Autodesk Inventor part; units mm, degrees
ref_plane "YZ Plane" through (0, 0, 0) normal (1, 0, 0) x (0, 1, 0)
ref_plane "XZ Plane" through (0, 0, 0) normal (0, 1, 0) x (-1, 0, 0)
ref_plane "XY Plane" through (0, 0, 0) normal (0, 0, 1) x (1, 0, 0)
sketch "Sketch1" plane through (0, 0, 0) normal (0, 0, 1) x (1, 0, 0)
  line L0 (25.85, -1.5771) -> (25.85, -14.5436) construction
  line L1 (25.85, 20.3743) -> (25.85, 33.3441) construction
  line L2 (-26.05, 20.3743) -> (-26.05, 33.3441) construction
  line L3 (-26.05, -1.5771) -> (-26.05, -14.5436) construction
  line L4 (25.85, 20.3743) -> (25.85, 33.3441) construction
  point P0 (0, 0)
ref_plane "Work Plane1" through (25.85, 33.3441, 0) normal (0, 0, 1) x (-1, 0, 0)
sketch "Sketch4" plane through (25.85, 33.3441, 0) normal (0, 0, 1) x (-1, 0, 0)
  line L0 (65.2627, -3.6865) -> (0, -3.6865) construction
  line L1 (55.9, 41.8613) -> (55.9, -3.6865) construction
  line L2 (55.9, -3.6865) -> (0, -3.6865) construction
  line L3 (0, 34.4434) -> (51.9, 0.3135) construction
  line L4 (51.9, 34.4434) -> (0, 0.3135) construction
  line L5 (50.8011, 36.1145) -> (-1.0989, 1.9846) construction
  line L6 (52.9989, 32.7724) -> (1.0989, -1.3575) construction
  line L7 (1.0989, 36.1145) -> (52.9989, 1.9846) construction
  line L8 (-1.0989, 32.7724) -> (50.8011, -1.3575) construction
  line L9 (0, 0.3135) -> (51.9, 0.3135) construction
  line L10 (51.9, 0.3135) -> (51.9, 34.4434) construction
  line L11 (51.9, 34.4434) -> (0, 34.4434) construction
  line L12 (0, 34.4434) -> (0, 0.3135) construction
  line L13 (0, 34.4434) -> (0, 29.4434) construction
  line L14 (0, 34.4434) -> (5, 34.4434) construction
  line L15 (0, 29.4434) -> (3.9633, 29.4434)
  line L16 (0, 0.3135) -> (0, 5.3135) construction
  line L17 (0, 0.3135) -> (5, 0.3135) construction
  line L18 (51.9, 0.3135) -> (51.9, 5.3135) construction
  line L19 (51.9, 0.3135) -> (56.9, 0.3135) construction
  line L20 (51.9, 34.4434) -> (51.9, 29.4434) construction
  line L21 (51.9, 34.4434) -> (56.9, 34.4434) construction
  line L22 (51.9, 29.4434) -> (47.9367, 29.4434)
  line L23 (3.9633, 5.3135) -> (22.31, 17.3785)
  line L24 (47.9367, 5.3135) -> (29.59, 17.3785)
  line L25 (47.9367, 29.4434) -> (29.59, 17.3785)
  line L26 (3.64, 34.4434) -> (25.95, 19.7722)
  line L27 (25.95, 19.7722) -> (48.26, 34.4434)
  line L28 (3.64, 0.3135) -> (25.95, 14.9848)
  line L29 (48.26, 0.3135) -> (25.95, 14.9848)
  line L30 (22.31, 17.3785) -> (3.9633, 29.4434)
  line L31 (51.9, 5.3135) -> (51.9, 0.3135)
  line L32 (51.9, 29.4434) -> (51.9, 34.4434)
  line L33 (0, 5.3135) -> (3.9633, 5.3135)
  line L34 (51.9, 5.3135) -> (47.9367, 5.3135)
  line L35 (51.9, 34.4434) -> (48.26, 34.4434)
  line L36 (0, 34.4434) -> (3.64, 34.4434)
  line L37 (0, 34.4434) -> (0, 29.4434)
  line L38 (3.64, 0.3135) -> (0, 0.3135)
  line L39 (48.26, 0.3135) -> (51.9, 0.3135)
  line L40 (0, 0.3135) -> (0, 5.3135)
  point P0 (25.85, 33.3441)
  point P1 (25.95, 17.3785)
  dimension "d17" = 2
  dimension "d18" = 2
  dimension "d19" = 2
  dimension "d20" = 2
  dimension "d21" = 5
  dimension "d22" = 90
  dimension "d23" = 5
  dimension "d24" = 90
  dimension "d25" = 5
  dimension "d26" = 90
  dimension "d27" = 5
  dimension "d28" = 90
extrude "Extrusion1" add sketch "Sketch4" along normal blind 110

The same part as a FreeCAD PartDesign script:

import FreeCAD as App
import Part
import Sketcher

V = App.Vector
Q = App.Units.Quantity


def add_polygon(sketch, points):
    """Adds a closed chain of lines whose ends are joined by coincident constraints."""
    first, n = sketch.GeometryCount, len(points)
    for a, b in zip(points, points[1:] + points[:1]):
        sketch.addGeometry(Part.LineSegment(App.Vector(*a, 0), App.Vector(*b, 0)), False)
    for i in range(n):
        sketch.addConstraint(Sketcher.Constraint("Coincident", first + i, 2, first + (i + 1) % n, 1))

doc = App.newDocument("Part")
body = doc.addObject("PartDesign::Body", "Body")

# Sketch on XY plane
sketch1 = body.newObject("Sketcher::SketchObject", "Sketch")
sketch1.AttachmentSupport = (doc.getObject("XY_Plane"), [""])
sketch1.MapMode = "FlatFace"
add_polygon(sketch1, [(25.9, -1.1), (25.9, 3.9), (21.9, 3.9), (3.5, 16), (21.9, 28), (25.9, 28), (25.9, 33), (22.2, 33), (-0.1, 18.4), (-22.4, 33), (-26.1, 33), (-26.1, 28), (-22.1, 28), (-3.7, 16), (-22.1, 3.9), (-26.1, 3.9), (-26.1, -1.1), (-22.4, -1.1), (-0.1, 13.6), (22.2, -1.1)])  # lines 0-19
sketch1.addConstraint(Sketcher.Constraint("Vertical", 0))
sketch1.addConstraint(Sketcher.Constraint("Horizontal", 1))
sketch1.addConstraint(Sketcher.Constraint("Horizontal", 4))
sketch1.addConstraint(Sketcher.Constraint("Vertical", 5))
sketch1.addConstraint(Sketcher.Constraint("Horizontal", 6))
sketch1.addConstraint(Sketcher.Constraint("Horizontal", 9))
sketch1.addConstraint(Sketcher.Constraint("Vertical", 10))
sketch1.addConstraint(Sketcher.Constraint("Horizontal", 11))
sketch1.addConstraint(Sketcher.Constraint("Horizontal", 14))
sketch1.addConstraint(Sketcher.Constraint("Vertical", 15))
sketch1.addConstraint(Sketcher.Constraint("Horizontal", 16))
sketch1.addConstraint(Sketcher.Constraint("Horizontal", 19))
sketch1.addConstraint(Sketcher.Constraint("Parallel", 3, 7))
sketch1.addConstraint(Sketcher.Constraint("Parallel", 2, 8))
sketch1.addConstraint(Sketcher.Constraint("Parallel", 8, 12))
sketch1.addConstraint(Sketcher.Constraint("Parallel", 7, 13))
sketch1.addConstraint(Sketcher.Constraint("Parallel", 13, 17))
sketch1.addConstraint(Sketcher.Constraint("Parallel", 12, 18))
sketch1.addConstraint(Sketcher.Constraint("Horizontal", 6, 2, 8, 2))
sketch1.addConstraint(Sketcher.Constraint("Horizontal", 4, 2, 10, 2))
sketch1.addConstraint(Sketcher.Constraint("Horizontal", 2, 2, 12, 2))
sketch1.addConstraint(Sketcher.Constraint("Horizontal", 1, 2, 13, 2))
sketch1.addConstraint(Sketcher.Constraint("Horizontal", 16, 2, 18, 2))
sketch1.addConstraint(Sketcher.Constraint("Vertical", 1, 2, 3, 2))
sketch1.addConstraint(Sketcher.Constraint("Vertical", 0, 2, 4, 2))
sketch1.addConstraint(Sketcher.Constraint("Vertical", 11, 2, 13, 2))
sketch1.addConstraint(Sketcher.Constraint("Vertical", 10, 2, 14, 2))
sketch1.addConstraint(Sketcher.Constraint("Vertical", 8, 2, 16, 2))
sketch1.addConstraint(Sketcher.Constraint("Vertical", 7, 2, 17, 2))
sketch1.addConstraint(Sketcher.Constraint("Equal", 6, 9))
sketch1.addConstraint(Sketcher.Constraint("Equal", 4, 11))
sketch1.addConstraint(Sketcher.Constraint("Equal", 0, 5))
sketch1.addConstraint(Sketcher.Constraint("DistanceY", 0, 1, 0, 2, 5.0))
sketch1.addConstraint(Sketcher.Constraint("DistanceX", 6, 2, 6, 1, 3.64))
sketch1.addConstraint(Sketcher.Constraint("DistanceX", 7, 2, -1, 1, 0.1))
sketch1.addConstraint(Sketcher.Constraint("Angle", 2, Q("146.6708 deg")))
sketch1.addConstraint(Sketcher.Constraint("DistanceX", -1, 1, 0, 2, 25.85))
sketch1.addConstraint(Sketcher.Constraint("DistanceX", -1, 1, 2, 2, 3.54))
sketch1.addConstraint(Sketcher.Constraint("DistanceY", 1, 2, 3, 2, 24.13))
sketch1.addConstraint(Sketcher.Constraint("DistanceY", -1, 1, 17, 2, 13.572))
pad1 = body.newObject("PartDesign::Pad", "Pad")
pad1.Profile = sketch1
pad1.Length = 110

doc.recompute()
